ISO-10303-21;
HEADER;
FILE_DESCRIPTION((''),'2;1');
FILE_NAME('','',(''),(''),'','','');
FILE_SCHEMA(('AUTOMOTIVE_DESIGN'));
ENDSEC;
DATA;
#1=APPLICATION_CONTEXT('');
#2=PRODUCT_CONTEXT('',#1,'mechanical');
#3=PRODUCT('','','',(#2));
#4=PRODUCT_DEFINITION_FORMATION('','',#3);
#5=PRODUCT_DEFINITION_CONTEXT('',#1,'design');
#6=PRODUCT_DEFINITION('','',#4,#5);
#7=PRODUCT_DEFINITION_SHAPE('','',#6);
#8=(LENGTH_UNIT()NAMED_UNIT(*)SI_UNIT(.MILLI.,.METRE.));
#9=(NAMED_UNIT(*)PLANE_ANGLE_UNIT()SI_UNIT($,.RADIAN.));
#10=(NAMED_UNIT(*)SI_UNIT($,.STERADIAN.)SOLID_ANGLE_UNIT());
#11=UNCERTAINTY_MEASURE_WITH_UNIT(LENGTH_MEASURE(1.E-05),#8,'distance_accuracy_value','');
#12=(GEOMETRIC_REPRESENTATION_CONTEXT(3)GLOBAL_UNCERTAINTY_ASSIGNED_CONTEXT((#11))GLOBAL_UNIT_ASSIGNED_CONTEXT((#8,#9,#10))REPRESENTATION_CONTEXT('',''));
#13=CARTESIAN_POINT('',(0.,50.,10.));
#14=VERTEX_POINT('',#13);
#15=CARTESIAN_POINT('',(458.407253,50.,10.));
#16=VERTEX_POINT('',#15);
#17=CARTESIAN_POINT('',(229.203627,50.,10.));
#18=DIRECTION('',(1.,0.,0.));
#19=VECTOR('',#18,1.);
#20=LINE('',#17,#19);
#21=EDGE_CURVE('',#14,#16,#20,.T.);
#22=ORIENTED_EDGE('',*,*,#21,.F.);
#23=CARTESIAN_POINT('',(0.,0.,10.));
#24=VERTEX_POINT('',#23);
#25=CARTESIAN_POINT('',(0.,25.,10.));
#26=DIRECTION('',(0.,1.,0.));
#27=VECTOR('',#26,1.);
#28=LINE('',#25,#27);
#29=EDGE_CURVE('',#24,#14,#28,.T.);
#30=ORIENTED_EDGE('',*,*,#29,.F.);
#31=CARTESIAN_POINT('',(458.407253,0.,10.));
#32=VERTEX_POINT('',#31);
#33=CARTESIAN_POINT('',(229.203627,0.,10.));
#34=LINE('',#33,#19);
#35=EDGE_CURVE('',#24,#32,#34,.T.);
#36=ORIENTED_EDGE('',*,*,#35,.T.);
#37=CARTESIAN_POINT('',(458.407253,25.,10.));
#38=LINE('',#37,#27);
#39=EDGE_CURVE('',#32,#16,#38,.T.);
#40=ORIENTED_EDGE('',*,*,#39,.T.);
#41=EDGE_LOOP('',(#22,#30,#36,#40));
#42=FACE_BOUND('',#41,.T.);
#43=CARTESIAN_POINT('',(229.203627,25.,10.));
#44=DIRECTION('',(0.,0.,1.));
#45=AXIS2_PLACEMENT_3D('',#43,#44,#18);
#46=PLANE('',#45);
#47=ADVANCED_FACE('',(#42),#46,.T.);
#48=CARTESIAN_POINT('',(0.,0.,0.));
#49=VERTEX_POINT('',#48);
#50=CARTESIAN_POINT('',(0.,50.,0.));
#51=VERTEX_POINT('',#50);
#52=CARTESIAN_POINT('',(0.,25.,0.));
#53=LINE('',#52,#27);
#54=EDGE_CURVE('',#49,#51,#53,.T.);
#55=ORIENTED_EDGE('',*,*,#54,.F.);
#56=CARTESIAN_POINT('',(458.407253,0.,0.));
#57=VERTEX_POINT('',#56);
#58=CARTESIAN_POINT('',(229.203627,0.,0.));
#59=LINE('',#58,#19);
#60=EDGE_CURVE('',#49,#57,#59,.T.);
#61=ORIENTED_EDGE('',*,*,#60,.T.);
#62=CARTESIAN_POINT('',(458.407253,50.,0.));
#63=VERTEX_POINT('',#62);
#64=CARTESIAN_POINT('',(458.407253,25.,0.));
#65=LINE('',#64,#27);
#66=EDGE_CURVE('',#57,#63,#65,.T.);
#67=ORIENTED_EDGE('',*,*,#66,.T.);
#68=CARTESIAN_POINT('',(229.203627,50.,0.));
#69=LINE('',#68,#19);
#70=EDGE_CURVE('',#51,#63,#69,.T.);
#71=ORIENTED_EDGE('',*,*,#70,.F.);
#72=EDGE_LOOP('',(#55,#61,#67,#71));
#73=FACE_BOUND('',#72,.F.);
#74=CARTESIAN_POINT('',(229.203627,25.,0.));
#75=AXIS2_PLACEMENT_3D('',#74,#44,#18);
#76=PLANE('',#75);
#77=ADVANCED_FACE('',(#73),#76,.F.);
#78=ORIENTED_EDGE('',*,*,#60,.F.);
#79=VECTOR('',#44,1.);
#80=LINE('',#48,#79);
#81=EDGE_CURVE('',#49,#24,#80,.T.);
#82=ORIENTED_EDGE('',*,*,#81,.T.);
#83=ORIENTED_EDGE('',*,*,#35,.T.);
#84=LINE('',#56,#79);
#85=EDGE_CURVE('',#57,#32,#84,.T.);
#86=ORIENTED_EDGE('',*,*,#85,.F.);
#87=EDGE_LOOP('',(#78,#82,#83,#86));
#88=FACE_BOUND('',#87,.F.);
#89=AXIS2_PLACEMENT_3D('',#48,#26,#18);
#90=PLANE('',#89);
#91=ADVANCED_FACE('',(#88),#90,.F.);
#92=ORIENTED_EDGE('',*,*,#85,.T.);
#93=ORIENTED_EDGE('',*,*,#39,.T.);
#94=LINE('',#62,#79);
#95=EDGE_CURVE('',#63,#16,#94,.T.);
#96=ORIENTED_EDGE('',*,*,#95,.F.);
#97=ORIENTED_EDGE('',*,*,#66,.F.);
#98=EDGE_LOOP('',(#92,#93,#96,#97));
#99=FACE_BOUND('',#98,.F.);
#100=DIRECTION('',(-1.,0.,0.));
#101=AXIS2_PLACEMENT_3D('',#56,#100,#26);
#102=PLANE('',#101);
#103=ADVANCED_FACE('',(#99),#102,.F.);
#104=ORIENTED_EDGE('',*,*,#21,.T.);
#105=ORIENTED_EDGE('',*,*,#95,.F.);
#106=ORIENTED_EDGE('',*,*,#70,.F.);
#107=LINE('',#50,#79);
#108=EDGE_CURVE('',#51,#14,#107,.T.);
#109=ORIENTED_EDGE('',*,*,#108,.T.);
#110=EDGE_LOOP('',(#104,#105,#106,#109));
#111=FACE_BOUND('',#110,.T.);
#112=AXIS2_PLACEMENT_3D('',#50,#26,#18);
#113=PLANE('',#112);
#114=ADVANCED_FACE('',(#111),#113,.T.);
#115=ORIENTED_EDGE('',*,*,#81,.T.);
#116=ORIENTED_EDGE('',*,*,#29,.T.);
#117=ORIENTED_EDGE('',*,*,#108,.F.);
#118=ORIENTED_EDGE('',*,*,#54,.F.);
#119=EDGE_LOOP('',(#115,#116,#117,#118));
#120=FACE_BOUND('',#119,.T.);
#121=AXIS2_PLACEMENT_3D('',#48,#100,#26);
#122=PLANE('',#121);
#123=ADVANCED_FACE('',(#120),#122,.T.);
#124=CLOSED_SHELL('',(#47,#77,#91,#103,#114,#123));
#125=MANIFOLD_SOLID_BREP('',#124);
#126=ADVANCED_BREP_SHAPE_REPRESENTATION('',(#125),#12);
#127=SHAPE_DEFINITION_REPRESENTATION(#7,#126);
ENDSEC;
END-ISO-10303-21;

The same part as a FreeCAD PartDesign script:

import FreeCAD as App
import Part
import Sketcher

doc = App.newDocument("Part")
params = doc.addObject("Spreadsheet::Sheet", "Params")
for row, (alias, value) in enumerate([
    ("sketch1_height", "50 mm"),
    ("pad1_length", "10 mm"),
], start=1):
    params.set(f"A{row}", alias)
    params.set(f"B{row}", "=" + value)
    params.setAlias(f"B{row}", alias)

body = doc.addObject("PartDesign::Body", "Body")

# Sketch on XY plane
sketch1 = doc.addObject("Sketcher::SketchObject", "Sketch")
body.addObject(sketch1)
sketch1.AttachmentSupport = (doc.XY_Plane, [""])
sketch1.MapMode = "FlatFace"
sketch1.addGeometry(Part.LineSegment(App.Vector(0, 50, 0), App.Vector(0, 0, 0)), False)
sketch1.addGeometry(Part.LineSegment(App.Vector(0, 0, 0), App.Vector(458.407253, 0, 0)), False)
sketch1.addGeometry(Part.LineSegment(App.Vector(458.407253, 0, 0), App.Vector(458.407253, 50, 0)), False)
sketch1.addGeometry(Part.LineSegment(App.Vector(458.407253, 50, 0), App.Vector(0, 50, 0)), False)
sketch1.addConstraint(Sketcher.Constraint("Coincident", 0, 2, 1, 1))
sketch1.addConstraint(Sketcher.Constraint("Coincident", 1, 2, 2, 1))
sketch1.addConstraint(Sketcher.Constraint("Coincident", 2, 2, 3, 1))
sketch1.addConstraint(Sketcher.Constraint("Coincident", 3, 2, 0, 1))
sketch1.addConstraint(Sketcher.Constraint("Vertical", 0))
sketch1.addConstraint(Sketcher.Constraint("Horizontal", 1))
sketch1.addConstraint(Sketcher.Constraint("Vertical", 2))
sketch1.addConstraint(Sketcher.Constraint("Horizontal", 3))
sketch1.addConstraint(Sketcher.Constraint("Coincident", 0, 2, -1, 1))
sketch1.addConstraint(Sketcher.Constraint("DistanceY", 0, 2, 0, 1, 50.0))
sketch1.addConstraint(Sketcher.Constraint("DistanceX", 1, 1, 1, 2, 458.407253))
sketch1.setExpression("Constraints[9]", "Params.sketch1_height")
pad1 = doc.addObject("PartDesign::Pad", "Pad")
body.addObject(pad1)
pad1.Profile = sketch1
pad1.setExpression("Length", "Params.pad1_length")

doc.recompute()
